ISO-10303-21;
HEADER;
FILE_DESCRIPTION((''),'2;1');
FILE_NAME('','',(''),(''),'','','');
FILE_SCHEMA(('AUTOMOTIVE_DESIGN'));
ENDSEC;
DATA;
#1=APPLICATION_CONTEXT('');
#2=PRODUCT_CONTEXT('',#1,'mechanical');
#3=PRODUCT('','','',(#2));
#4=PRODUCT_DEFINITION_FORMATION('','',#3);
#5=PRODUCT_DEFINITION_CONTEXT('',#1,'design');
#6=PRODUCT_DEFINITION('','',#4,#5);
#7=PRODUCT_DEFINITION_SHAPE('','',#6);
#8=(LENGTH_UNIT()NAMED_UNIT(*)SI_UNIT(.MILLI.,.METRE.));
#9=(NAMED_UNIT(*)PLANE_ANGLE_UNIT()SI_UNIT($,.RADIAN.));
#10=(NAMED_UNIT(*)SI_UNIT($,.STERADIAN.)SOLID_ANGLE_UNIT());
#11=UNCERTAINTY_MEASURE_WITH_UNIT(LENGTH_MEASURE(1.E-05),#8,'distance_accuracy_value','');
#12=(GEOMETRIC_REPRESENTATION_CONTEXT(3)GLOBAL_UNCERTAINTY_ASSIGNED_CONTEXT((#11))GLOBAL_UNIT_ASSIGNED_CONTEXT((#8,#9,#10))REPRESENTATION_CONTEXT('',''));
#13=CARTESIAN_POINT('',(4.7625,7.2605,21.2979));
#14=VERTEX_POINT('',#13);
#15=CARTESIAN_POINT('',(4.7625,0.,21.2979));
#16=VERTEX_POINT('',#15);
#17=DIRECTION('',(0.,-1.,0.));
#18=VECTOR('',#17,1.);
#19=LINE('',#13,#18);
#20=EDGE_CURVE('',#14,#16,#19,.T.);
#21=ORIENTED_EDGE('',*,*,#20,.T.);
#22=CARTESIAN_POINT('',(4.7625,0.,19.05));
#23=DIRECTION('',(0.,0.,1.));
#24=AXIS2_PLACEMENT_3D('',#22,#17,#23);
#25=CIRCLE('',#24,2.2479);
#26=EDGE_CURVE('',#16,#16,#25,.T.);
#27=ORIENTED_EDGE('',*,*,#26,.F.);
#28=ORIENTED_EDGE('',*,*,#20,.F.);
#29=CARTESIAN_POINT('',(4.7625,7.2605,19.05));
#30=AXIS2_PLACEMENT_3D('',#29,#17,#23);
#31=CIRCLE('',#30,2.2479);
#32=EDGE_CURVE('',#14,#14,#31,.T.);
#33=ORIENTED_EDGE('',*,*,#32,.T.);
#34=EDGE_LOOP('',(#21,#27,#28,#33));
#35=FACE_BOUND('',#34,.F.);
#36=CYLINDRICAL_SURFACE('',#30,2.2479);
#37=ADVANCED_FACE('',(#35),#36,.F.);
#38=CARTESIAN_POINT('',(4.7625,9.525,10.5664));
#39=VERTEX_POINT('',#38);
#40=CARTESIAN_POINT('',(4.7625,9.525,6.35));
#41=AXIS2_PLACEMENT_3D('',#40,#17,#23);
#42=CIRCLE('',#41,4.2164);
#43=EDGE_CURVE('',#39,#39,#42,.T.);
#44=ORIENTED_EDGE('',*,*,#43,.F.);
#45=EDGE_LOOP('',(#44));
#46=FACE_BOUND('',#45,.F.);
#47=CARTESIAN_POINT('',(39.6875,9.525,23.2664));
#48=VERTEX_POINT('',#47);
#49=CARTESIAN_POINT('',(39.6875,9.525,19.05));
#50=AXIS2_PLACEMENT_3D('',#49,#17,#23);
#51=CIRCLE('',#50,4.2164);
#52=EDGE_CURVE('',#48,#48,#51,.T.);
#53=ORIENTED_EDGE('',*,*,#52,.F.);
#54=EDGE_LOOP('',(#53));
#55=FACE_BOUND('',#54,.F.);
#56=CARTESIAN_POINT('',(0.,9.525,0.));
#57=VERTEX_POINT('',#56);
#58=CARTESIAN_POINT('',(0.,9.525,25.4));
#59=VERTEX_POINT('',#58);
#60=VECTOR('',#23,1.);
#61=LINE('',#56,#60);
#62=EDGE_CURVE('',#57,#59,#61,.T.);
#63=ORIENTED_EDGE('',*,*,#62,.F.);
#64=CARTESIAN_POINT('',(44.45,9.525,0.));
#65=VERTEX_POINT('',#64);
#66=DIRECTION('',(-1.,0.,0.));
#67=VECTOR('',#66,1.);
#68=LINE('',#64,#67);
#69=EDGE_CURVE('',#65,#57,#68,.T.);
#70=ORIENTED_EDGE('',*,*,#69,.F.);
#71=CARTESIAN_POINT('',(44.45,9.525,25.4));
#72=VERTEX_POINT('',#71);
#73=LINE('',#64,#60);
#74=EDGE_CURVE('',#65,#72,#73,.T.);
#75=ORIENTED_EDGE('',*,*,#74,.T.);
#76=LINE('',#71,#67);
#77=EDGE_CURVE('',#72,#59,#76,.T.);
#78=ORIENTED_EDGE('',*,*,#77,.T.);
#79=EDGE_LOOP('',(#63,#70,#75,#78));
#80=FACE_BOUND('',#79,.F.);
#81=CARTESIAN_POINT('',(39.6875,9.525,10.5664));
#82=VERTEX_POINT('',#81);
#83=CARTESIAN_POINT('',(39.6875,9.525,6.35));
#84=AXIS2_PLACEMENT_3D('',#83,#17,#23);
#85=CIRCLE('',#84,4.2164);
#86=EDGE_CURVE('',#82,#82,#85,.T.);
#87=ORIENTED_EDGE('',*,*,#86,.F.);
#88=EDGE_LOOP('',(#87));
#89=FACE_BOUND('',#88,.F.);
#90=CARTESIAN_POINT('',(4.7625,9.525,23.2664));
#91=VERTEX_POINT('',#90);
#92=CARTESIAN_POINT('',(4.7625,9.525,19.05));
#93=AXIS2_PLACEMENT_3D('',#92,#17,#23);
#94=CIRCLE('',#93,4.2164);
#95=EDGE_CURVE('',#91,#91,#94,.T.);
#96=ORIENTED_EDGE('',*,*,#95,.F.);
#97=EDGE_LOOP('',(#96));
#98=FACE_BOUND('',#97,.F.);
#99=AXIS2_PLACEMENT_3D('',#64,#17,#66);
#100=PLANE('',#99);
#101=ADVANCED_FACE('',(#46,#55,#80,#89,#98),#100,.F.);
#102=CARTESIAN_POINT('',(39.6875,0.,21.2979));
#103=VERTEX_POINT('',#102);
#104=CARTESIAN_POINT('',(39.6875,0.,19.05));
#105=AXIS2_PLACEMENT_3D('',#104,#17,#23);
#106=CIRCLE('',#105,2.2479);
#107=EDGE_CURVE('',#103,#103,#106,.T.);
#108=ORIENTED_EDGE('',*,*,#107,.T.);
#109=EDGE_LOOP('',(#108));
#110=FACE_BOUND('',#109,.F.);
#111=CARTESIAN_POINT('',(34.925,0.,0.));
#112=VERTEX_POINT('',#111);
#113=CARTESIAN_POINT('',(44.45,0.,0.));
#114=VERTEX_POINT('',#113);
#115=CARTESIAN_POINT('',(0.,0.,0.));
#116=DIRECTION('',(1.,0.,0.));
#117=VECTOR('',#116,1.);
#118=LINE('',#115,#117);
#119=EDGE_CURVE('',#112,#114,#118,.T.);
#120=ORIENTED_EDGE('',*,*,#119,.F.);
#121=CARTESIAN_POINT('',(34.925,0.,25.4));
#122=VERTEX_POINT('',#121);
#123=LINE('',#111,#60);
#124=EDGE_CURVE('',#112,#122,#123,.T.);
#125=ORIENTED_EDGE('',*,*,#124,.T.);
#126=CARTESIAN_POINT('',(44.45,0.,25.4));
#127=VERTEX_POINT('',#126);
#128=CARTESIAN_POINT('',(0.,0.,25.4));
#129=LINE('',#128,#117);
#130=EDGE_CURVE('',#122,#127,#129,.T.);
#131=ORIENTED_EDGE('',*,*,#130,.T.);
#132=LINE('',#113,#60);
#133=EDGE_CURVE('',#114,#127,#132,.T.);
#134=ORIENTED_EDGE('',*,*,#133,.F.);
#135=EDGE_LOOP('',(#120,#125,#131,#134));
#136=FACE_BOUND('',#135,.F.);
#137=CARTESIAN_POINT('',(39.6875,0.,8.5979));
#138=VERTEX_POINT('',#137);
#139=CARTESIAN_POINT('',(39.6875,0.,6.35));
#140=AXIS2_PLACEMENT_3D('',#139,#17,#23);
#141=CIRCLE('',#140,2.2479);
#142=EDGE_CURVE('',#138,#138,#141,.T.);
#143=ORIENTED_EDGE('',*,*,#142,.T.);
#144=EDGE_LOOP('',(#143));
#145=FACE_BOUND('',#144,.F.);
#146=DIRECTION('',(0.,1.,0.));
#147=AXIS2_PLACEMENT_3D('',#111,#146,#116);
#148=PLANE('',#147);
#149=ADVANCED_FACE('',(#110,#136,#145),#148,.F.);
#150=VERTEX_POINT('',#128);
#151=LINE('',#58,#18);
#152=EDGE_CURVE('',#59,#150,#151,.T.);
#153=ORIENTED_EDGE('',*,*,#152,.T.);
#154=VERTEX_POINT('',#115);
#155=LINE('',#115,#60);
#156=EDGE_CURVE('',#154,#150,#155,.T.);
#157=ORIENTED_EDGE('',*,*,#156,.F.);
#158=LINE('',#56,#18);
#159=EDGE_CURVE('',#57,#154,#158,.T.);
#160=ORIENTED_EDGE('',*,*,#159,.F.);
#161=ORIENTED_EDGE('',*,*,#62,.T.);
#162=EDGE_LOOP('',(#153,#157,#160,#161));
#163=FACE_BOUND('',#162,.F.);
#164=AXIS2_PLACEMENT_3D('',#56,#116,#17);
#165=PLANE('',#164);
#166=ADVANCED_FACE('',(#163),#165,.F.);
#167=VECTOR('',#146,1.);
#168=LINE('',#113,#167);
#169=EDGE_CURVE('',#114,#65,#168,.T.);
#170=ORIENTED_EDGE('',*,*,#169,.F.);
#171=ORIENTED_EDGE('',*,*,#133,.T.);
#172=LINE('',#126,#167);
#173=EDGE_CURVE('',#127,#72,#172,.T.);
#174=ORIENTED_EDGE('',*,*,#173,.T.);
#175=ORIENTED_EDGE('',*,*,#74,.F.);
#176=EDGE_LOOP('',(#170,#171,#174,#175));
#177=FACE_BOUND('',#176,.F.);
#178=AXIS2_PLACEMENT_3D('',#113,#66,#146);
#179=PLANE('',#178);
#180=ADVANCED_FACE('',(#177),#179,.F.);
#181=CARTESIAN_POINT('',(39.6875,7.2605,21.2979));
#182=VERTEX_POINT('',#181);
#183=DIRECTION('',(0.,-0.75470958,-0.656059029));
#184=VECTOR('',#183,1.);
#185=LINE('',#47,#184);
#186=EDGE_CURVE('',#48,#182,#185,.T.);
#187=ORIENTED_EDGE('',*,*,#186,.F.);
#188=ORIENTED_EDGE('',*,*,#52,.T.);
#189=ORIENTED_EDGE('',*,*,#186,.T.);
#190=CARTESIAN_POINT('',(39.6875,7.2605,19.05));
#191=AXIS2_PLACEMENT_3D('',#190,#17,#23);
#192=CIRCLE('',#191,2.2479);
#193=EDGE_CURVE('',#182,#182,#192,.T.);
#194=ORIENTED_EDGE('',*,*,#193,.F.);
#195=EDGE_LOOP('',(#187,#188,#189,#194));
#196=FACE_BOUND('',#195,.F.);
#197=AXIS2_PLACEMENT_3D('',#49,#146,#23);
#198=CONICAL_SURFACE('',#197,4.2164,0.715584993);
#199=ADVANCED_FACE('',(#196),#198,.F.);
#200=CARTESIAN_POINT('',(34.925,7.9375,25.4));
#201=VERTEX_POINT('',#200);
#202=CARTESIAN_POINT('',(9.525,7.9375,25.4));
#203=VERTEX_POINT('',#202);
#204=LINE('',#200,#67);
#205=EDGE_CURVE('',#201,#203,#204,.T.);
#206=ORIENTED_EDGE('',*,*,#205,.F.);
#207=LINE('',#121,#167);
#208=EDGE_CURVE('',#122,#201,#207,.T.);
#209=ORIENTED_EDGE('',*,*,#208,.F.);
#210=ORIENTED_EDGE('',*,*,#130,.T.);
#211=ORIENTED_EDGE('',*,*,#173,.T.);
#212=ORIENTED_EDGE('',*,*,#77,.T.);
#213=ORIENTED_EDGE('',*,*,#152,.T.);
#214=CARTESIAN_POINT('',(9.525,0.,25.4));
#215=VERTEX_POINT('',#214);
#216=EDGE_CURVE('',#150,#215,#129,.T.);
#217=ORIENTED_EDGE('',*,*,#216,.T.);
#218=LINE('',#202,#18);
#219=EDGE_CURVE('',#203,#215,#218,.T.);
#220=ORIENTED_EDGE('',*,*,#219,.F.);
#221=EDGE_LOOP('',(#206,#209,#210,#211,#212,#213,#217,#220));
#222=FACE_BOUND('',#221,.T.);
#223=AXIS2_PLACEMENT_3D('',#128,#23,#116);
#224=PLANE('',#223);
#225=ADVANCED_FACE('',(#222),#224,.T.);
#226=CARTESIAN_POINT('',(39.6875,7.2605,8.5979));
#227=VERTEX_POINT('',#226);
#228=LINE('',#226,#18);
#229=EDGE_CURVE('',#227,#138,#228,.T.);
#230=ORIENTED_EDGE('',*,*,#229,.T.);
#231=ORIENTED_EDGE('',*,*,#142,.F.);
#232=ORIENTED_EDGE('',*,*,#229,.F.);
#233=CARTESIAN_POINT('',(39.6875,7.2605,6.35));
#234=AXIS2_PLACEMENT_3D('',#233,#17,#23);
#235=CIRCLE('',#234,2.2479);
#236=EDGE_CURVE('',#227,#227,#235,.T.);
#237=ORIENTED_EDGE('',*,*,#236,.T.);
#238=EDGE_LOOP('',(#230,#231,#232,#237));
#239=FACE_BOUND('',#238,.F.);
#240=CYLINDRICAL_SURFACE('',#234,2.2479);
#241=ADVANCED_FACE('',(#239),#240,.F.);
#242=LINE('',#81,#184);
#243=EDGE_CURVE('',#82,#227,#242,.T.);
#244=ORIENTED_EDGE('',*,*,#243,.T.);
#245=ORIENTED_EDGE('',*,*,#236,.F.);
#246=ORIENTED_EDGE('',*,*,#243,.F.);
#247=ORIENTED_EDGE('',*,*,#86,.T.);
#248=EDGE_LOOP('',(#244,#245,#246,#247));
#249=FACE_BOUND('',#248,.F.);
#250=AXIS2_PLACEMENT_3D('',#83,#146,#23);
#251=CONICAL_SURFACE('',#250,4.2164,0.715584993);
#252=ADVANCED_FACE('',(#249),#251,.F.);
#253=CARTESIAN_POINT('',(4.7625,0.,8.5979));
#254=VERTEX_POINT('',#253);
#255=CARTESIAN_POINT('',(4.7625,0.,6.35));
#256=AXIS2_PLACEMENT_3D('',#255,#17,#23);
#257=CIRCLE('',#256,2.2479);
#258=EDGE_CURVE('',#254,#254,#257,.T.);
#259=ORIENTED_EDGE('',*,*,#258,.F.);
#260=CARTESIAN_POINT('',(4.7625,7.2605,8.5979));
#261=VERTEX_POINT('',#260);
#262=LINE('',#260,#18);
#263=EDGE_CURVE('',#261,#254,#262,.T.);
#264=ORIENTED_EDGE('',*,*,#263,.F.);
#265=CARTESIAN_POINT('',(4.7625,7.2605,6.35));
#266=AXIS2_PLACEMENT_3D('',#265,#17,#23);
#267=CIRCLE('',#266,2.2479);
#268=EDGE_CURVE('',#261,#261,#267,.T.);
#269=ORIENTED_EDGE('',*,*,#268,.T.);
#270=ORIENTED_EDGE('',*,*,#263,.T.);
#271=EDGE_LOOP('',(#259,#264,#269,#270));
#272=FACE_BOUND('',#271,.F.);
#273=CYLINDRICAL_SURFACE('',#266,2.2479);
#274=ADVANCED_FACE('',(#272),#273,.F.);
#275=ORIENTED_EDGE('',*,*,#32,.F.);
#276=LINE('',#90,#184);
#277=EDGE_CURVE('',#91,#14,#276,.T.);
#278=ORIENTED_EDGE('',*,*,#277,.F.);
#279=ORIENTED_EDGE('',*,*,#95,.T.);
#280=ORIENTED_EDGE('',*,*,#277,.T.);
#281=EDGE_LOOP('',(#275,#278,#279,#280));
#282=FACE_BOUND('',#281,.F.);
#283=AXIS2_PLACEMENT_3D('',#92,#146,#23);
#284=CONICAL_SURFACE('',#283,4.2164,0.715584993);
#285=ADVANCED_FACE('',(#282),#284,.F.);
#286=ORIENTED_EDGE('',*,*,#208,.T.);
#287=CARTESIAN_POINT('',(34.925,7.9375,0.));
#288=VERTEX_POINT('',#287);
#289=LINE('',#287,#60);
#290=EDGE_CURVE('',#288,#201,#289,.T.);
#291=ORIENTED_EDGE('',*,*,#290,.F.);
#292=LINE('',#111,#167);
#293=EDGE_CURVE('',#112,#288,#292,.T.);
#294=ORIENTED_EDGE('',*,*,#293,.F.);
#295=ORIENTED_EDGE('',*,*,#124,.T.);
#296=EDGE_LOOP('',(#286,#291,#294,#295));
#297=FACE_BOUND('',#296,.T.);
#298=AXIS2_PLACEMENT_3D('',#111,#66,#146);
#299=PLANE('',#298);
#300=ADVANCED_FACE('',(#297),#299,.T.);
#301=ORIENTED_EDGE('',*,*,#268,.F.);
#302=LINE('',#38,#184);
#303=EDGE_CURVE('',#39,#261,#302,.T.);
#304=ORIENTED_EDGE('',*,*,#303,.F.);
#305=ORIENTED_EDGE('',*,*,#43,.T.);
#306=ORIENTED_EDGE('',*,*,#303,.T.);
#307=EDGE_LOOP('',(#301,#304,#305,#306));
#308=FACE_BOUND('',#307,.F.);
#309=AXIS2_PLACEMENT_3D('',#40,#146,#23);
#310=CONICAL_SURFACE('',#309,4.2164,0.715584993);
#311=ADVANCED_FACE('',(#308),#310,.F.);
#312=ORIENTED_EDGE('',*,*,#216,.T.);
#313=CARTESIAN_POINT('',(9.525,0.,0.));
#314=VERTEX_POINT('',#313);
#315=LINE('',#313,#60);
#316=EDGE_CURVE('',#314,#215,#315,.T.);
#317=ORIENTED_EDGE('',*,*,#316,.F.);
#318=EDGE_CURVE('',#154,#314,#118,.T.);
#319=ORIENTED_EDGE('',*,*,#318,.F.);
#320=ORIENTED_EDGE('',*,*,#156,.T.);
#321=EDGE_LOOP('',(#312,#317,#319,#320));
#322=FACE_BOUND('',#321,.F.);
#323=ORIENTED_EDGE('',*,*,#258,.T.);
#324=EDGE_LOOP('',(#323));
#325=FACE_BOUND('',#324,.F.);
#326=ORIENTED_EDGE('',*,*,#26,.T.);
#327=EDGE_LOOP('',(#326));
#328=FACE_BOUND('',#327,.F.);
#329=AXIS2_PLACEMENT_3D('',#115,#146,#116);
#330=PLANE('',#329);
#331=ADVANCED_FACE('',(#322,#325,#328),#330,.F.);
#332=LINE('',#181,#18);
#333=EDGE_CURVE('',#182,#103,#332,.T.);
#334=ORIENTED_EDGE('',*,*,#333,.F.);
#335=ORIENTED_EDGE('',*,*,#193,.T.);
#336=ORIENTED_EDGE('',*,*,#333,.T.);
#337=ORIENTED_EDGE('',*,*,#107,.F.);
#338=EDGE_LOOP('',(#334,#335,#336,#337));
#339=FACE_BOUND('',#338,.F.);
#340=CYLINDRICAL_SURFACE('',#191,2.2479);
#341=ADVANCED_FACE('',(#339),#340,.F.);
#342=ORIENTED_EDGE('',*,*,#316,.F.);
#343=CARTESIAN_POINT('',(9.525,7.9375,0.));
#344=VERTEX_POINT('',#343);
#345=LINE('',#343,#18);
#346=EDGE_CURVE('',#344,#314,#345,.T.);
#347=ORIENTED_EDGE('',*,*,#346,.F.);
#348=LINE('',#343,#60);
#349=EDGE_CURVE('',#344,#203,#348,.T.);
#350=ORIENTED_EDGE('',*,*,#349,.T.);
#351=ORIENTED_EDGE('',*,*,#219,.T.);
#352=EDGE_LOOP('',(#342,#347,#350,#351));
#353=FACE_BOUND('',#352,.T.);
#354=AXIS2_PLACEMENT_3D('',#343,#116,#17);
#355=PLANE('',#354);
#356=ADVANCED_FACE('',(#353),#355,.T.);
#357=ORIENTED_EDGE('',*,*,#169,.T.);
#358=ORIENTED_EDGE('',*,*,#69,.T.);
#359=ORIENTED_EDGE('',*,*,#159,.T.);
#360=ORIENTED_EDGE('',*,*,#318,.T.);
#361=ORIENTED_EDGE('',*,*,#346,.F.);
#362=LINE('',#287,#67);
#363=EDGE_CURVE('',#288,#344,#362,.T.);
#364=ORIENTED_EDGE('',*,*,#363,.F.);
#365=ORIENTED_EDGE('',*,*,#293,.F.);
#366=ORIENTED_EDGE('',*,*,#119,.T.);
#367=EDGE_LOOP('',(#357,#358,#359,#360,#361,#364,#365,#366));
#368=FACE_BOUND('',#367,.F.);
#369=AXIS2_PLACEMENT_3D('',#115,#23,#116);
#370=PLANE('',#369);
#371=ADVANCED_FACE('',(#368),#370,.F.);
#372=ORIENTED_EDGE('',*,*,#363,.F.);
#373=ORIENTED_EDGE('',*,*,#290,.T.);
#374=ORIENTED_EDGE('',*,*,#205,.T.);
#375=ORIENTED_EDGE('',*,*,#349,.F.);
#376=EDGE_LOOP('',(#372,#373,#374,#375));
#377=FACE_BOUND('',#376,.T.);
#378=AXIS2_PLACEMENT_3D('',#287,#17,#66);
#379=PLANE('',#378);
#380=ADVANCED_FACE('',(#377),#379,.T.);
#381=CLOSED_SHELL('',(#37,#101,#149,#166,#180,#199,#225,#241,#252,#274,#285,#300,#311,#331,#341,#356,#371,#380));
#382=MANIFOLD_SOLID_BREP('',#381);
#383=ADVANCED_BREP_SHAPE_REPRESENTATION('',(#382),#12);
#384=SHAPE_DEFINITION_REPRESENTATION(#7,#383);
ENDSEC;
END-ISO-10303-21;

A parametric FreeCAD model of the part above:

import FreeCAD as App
import Part
import Sketcher
Q = App.Units.Quantity

doc = App.newDocument("Part")
body = doc.addObject("PartDesign::Body", "Body")

sketch1 = body.newObject("Sketcher::SketchObject", "Sketch")
sketch1.AttachmentSupport = (doc.getObject("XY_Plane"), [""])
sketch1.MapMode = "FlatFace"
sketch1.addGeometry(Part.LineSegment(App.Vector(0, 9.525, 0), App.Vector(0, 0, 0)), False)
sketch1.addGeometry(Part.LineSegment(App.Vector(0, 0, 0), App.Vector(9.525, 0, 0)), False)
sketch1.addGeometry(Part.LineSegment(App.Vector(9.525, 0, 0), App.Vector(9.525, 7.9375, 0)), False)
sketch1.addGeometry(Part.LineSegment(App.Vector(9.525, 7.9375, 0), App.Vector(34.925, 7.9375, 0)), False)
sketch1.addGeometry(Part.LineSegment(App.Vector(34.925, 7.9375, 0), App.Vector(34.925, 0, 0)), False)
sketch1.addGeometry(Part.LineSegment(App.Vector(34.925, 0, 0), App.Vector(44.45, 0, 0)), False)
sketch1.addGeometry(Part.LineSegment(App.Vector(44.45, 0, 0), App.Vector(44.45, 9.525, 0)), False)
sketch1.addGeometry(Part.LineSegment(App.Vector(44.45, 9.525, 0), App.Vector(0, 9.525, 0)), False)
sketch1.addConstraint(Sketcher.Constraint("Coincident", 0, 2, 1, 1))
sketch1.addConstraint(Sketcher.Constraint("Coincident", 1, 2, 2, 1))
sketch1.addConstraint(Sketcher.Constraint("Coincident", 2, 2, 3, 1))
sketch1.addConstraint(Sketcher.Constraint("Coincident", 3, 2, 4, 1))
sketch1.addConstraint(Sketcher.Constraint("Coincident", 4, 2, 5, 1))
sketch1.addConstraint(Sketcher.Constraint("Coincident", 5, 2, 6, 1))
sketch1.addConstraint(Sketcher.Constraint("Coincident", 6, 2, 7, 1))
sketch1.addConstraint(Sketcher.Constraint("Coincident", 7, 2, 0, 1))
sketch1.addConstraint(Sketcher.Constraint("Vertical", 0))
sketch1.addConstraint(Sketcher.Constraint("Horizontal", 1))
sketch1.addConstraint(Sketcher.Constraint("Vertical", 2))
sketch1.addConstraint(Sketcher.Constraint("Horizontal", 3))
sketch1.addConstraint(Sketcher.Constraint("Vertical", 4))
sketch1.addConstraint(Sketcher.Constraint("Horizontal", 5))
sketch1.addConstraint(Sketcher.Constraint("Vertical", 6))
sketch1.addConstraint(Sketcher.Constraint("Horizontal", 7))
sketch1.addConstraint(Sketcher.Constraint("Coincident", 0, 2, -1, 1))
sketch1.addConstraint(Sketcher.Constraint("PointOnObject", 4, 2, -1))
sketch1.addConstraint(Sketcher.Constraint("Equal", 1, 5))
sketch1.addConstraint(Sketcher.Constraint("Equal", 5, 0))
sketch1.addConstraint(Sketcher.Constraint("DistanceX", 3, 1, 3, 2, Q("1 in")))
sketch1.addConstraint(Sketcher.Constraint("DistanceX", 7, 2, 7, 1, Q("1.75 in")))
sketch1.addConstraint(Sketcher.Constraint("DistanceY", 2, 1, 2, 2, Q("0.3125 in")))
pad1 = body.newObject("PartDesign::Pad", "Pad")
pad1.Profile = sketch1
pad1.Length = Q("1 in")

sketch2 = body.newObject("Sketcher::SketchObject", "Sketch001")
sketch2.AttachmentSupport = (doc.getObject("XZ_Plane"), [""])
sketch2.MapMode = "FlatFace"
sketch2.AttachmentOffset = App.Placement(App.Vector(0, 0, -0.375 * 25.4), App.Rotation())
sketch2.addGeometry(Part.Circle(App.Vector(39.6875, 19.05, 0), App.Vector(0, 0, 1), 2.2479), False)
sketch2.addGeometry(Part.Circle(App.Vector(39.6875, 6.35, 0), App.Vector(0, 0, 1), 2.2479), False)
sketch2.addGeometry(Part.Circle(App.Vector(4.7625, 19.05, 0), App.Vector(0, 0, 1), 2.2479), False)
sketch2.addGeometry(Part.Circle(App.Vector(4.7625, 6.35, 0), App.Vector(0, 0, 1), 2.2479), False)
sketch2.addConstraint(Sketcher.Constraint("Equal", 0, 1))
sketch2.addConstraint(Sketcher.Constraint("Equal", 1, 2))
sketch2.addConstraint(Sketcher.Constraint("Equal", 2, 3))
sketch2.addConstraint(Sketcher.Constraint("Horizontal", 0, 3, 2, 3))
sketch2.addConstraint(Sketcher.Constraint("Horizontal", 1, 3, 3, 3))
sketch2.addConstraint(Sketcher.Constraint("Vertical", 0, 3, 1, 3))
sketch2.addConstraint(Sketcher.Constraint("Vertical", 2, 3, 3, 3))
sketch2.addConstraint(Sketcher.Constraint("Diameter", 0, Q("0.177 in")))
sketch2.addConstraint(Sketcher.Constraint("DistanceY", 1, 3, 0, 3, Q("0.5 in")))
sketch2.addConstraint(Sketcher.Constraint("DistanceY", -1, 1, 0, 3, Q("0.75 in")))
sketch2.addConstraint(Sketcher.Constraint("DistanceX", -1, 1, 0, 3, Q("1.5625 in")))
sketch2.addConstraint(Sketcher.Constraint("DistanceX", -1, 1, 2, 3, Q("0.1875 in")))
doc.recompute()
hole = body.newObject("PartDesign::Hole", "Hole")
hole.Profile = sketch2
hole.ThreadType = "None"
hole.Diameter = Q("0.177 in")
hole.DepthType = "ThroughAll"
hole.HoleCutType = "Countersink"
hole.HoleCutDiameter = Q("0.332 in")
hole.HoleCutCountersinkAngle = 82
hole.Reversed = True

doc.recompute()
